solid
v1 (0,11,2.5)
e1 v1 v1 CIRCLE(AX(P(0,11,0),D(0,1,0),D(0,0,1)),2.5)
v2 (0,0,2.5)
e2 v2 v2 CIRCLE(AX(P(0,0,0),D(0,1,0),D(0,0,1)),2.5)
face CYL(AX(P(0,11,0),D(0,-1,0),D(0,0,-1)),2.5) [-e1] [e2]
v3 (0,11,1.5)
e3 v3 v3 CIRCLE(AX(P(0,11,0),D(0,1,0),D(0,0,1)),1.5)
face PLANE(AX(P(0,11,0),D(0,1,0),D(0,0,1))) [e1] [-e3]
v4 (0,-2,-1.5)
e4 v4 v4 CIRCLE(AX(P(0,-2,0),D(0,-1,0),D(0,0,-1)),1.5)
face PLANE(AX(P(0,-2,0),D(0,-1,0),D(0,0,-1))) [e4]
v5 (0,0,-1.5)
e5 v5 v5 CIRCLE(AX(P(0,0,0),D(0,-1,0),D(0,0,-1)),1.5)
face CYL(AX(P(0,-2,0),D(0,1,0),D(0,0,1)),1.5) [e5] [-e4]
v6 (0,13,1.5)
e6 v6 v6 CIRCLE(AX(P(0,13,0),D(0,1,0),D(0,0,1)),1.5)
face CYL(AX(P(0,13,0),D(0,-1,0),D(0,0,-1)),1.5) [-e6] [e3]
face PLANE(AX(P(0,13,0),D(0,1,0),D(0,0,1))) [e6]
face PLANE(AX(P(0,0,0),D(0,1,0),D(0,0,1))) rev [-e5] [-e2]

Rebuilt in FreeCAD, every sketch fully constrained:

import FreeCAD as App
import Part
import Sketcher

V = App.Vector

doc = App.newDocument("Part")
body = doc.addObject("PartDesign::Body", "Body")

# Sketch on XZ plane
sketch1 = doc.addObject("Sketcher::SketchObject", "Sketch")
body.addObject(sketch1)
sketch1.AttachmentSupport = (doc.XZ_Plane, [""])
sketch1.MapMode = "FlatFace"
sketch1.addGeometry(Part.Circle(V(0, 0, 0), V(0, 0, 1), 2.5), False)
sketch1.addConstraint([
    Sketcher.Constraint("Coincident", 0, 3, -1, 1),
    Sketcher.Constraint("Diameter", 0, 5.0),
])
pad1 = doc.addObject("PartDesign::Pad", "Pad")
body.addObject(pad1)
pad1.Profile = sketch1
pad1.Length = 11
pad1.Reversed = True

# Sketch on XZ plane
sketch2 = doc.addObject("Sketcher::SketchObject", "Sketch001")
body.addObject(sketch2)
sketch2.AttachmentSupport = (doc.XZ_Plane, [""])
sketch2.MapMode = "FlatFace"
sketch2.AttachmentOffset = App.Placement(V(0, 0, -11), App.Rotation())
sketch2.addGeometry(Part.Circle(V(0, 0, 0), V(0, 0, 1), 1.5), False)
sketch2.addConstraint([
    Sketcher.Constraint("Coincident", 0, 3, -1, 1),
    Sketcher.Constraint("Diameter", 0, 3.0),
])
pad2 = doc.addObject("PartDesign::Pad", "Pad001")
body.addObject(pad2)
pad2.Profile = sketch2
pad2.Length = 2
pad2.Reversed = True

# Sketch on XZ plane
sketch3 = doc.addObject("Sketcher::SketchObject", "Sketch002")
body.addObject(sketch3)
sketch3.AttachmentSupport = (doc.XZ_Plane, [""])
sketch3.MapMode = "FlatFace"
sketch3.AttachmentOffset = App.Placement(V(0, 0, 2), App.Rotation())
sketch3.addGeometry(Part.Circle(V(0, 0, 0), V(0, 0, 1), 1.5), False)
sketch3.addConstraint([
    Sketcher.Constraint("Coincident", 0, 3, -1, 1),
    Sketcher.Constraint("Diameter", 0, 3.0),
])
pad3 = doc.addObject("PartDesign::Pad", "Pad002")
body.addObject(pad3)
pad3.Profile = sketch3
pad3.Length = 2
pad3.Reversed = True

doc.recompute()
